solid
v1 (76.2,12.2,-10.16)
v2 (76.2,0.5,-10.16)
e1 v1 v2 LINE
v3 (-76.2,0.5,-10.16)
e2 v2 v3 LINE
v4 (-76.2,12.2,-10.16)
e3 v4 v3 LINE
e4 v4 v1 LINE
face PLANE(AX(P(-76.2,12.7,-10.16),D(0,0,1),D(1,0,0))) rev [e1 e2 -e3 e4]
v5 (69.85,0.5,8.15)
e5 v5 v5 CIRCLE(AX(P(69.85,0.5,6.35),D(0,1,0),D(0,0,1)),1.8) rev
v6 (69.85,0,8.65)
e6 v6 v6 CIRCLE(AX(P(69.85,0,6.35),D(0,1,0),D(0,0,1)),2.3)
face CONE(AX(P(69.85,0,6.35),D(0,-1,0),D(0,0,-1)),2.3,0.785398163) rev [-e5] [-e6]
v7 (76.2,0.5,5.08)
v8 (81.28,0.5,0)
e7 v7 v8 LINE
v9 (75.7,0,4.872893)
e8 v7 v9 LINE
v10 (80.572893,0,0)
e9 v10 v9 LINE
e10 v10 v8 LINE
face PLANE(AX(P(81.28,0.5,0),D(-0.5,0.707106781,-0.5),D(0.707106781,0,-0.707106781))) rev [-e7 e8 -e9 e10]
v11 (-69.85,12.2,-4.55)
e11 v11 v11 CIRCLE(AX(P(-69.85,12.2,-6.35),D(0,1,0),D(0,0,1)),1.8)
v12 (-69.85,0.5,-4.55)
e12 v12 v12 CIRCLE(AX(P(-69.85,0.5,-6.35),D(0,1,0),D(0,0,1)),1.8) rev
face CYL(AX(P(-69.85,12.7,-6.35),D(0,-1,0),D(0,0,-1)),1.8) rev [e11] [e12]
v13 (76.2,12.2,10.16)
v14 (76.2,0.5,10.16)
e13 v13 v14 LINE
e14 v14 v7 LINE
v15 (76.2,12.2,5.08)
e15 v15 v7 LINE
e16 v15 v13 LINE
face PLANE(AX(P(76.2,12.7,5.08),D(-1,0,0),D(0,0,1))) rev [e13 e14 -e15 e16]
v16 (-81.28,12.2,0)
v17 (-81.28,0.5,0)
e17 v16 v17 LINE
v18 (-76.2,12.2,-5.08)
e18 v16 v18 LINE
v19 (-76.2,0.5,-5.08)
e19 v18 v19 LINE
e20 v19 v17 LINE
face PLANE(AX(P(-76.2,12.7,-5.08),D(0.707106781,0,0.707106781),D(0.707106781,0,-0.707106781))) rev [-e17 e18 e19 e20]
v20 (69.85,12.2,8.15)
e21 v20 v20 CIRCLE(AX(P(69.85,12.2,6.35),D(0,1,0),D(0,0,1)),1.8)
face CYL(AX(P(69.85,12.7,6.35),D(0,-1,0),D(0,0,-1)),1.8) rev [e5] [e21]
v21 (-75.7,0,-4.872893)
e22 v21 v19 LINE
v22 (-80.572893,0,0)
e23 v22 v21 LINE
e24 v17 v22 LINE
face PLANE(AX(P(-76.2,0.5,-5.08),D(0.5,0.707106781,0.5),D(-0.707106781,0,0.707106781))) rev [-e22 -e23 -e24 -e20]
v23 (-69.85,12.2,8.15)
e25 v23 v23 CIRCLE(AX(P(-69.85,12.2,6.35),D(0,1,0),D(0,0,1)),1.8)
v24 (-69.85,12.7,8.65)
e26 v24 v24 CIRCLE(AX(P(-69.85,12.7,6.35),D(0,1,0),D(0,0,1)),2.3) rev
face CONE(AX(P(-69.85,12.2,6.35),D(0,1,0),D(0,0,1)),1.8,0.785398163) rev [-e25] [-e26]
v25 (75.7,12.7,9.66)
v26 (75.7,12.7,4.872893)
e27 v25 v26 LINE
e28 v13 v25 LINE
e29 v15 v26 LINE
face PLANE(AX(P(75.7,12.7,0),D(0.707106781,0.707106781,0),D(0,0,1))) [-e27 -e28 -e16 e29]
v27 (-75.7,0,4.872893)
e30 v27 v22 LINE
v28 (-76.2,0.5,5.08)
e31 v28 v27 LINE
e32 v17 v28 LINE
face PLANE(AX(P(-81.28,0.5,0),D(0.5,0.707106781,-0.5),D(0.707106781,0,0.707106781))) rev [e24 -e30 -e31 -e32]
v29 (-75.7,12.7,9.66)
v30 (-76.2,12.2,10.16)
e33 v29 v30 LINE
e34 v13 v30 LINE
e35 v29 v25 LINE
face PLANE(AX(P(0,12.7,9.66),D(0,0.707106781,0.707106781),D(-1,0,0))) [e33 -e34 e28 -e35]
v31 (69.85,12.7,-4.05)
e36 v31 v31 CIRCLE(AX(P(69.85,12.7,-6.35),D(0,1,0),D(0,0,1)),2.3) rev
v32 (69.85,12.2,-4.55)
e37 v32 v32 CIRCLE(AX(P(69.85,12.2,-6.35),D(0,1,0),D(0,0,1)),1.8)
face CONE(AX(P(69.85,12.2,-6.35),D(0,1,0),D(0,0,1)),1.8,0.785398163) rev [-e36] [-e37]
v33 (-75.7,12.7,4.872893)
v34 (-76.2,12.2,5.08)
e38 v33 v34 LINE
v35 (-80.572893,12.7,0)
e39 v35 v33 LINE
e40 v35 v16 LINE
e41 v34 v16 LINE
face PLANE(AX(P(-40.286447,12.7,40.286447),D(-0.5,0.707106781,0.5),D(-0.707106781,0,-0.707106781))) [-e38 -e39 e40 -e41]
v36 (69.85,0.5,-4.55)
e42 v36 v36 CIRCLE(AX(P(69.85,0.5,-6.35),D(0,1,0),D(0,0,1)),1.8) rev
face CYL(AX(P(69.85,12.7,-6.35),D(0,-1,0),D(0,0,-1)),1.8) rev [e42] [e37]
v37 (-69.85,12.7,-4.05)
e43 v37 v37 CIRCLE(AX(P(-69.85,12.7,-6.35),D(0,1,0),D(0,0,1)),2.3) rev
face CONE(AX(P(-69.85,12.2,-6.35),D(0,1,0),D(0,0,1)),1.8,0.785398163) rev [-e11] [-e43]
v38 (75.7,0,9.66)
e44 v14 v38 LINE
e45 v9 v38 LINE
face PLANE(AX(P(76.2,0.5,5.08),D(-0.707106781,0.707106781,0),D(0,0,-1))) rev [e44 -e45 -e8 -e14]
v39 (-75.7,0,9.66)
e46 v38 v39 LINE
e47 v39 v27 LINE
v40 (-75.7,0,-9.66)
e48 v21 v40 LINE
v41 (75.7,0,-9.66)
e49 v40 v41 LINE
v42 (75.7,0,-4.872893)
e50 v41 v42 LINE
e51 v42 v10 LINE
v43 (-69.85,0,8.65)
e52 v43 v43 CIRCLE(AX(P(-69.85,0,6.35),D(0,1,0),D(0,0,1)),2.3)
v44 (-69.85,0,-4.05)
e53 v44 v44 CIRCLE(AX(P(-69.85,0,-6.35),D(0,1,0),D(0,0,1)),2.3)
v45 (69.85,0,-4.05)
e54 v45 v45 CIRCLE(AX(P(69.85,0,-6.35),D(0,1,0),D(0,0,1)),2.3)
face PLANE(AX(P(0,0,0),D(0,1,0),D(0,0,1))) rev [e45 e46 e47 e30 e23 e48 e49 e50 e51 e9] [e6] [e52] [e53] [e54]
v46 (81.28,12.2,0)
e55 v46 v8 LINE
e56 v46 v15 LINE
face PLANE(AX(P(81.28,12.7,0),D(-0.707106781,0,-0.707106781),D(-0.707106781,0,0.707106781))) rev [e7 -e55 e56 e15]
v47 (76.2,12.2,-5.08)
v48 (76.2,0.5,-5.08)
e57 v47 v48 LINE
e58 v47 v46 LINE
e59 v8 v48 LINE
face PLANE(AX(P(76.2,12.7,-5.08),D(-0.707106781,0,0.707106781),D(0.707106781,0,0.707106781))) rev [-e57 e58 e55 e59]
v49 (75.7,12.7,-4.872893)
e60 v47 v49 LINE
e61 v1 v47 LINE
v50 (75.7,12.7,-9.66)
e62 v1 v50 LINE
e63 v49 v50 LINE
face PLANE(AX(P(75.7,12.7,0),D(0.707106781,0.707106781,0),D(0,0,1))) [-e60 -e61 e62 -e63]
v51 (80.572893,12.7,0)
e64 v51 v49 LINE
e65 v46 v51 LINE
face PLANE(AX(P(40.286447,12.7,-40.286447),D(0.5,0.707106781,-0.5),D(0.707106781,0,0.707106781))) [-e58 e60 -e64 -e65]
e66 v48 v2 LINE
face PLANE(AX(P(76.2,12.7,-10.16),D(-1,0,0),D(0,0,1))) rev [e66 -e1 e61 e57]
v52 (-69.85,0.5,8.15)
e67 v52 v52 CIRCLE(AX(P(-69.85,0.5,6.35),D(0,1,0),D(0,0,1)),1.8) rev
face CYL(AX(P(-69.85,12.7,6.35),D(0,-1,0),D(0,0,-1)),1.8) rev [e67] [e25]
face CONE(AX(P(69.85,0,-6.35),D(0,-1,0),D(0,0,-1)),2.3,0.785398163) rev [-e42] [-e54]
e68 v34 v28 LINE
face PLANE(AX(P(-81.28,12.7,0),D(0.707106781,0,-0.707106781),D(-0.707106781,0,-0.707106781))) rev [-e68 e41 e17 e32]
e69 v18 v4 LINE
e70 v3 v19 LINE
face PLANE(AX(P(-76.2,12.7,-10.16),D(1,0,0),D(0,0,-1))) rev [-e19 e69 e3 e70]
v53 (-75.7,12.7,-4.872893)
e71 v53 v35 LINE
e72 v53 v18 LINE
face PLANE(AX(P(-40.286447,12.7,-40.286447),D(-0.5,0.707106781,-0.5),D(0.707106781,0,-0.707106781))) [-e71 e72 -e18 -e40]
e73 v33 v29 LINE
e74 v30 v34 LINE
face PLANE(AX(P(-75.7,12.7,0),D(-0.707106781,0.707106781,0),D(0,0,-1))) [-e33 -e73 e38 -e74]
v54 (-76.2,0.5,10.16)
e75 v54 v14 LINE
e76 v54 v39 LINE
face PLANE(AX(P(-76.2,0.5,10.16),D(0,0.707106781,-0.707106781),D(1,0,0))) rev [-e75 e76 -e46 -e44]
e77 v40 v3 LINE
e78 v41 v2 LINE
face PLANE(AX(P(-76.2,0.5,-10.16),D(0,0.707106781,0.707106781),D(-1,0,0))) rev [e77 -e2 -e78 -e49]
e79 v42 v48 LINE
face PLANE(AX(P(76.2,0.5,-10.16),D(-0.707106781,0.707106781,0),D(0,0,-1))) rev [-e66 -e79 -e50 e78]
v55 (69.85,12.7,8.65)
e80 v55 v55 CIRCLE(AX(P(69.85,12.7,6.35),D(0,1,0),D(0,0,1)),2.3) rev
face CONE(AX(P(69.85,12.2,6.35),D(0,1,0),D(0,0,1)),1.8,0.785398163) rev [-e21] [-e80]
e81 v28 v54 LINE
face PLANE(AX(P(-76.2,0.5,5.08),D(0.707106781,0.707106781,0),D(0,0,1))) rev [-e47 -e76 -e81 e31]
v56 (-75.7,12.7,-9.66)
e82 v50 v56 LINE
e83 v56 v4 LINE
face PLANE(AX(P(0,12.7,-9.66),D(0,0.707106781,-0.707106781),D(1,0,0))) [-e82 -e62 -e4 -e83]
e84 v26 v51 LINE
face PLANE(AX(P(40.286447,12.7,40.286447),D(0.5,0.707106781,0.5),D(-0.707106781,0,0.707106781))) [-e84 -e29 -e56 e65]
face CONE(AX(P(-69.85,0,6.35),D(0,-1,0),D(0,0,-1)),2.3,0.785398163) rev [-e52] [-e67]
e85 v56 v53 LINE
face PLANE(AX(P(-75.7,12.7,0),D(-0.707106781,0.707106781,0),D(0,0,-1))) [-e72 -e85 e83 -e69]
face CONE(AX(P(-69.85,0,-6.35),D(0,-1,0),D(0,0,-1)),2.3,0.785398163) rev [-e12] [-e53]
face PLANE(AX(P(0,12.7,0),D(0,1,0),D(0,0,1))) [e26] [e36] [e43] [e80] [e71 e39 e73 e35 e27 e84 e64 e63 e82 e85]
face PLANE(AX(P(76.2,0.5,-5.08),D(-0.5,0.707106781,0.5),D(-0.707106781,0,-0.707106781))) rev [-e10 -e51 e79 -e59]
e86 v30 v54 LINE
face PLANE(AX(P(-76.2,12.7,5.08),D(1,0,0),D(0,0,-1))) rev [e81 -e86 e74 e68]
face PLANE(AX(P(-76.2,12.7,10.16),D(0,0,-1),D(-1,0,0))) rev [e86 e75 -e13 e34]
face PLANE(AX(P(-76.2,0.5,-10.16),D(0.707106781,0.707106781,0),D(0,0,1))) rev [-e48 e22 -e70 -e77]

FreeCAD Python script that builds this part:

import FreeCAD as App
import Part
import Sketcher
Q = App.Units.Quantity


def edges_at(feature, points):
    """Names of the edges that pass closest to the given points."""
    edges = feature.Shape.Edges
    near = lambda p: min(range(len(edges)), key=lambda i: edges[i].distToShape(Part.Vertex(*p))[0])
    return sorted({f"Edge{near(p) + 1}" for p in points})

doc = App.newDocument("Part")
body = doc.addObject("PartDesign::Body", "Body")

# Sketch on XZ plane
sketch1 = body.newObject("Sketcher::SketchObject", "Sketch")
sketch1.AttachmentSupport = (doc.getObject("XZ_Plane"), [""])
sketch1.MapMode = "FlatFace"
sketch1.addGeometry([
    Part.LineSegment(App.Vector(-76.2, -5.08, 0), App.Vector(-81.28, 0, 0)),  # 0
    Part.LineSegment(App.Vector(-81.28, 0, 0), App.Vector(-76.2, 5.08, 0)),  # 1
    Part.LineSegment(App.Vector(-76.2, 5.08, 0), App.Vector(-76.2, 10.16, 0)),  # 2
    Part.LineSegment(App.Vector(-76.2, 10.16, 0), App.Vector(76.2, 10.16, 0)),  # 3
    Part.LineSegment(App.Vector(76.2, 10.16, 0), App.Vector(76.2, 5.08, 0)),  # 4
    Part.LineSegment(App.Vector(76.2, 5.08, 0), App.Vector(81.28, 0, 0)),  # 5
    Part.LineSegment(App.Vector(81.28, 0, 0), App.Vector(76.2, -5.08, 0)),  # 6
    Part.LineSegment(App.Vector(76.2, -5.08, 0), App.Vector(76.2, -10.16, 0)),  # 7
    Part.LineSegment(App.Vector(76.2, -10.16, 0), App.Vector(-76.2, -10.16, 0)),  # 8
    Part.LineSegment(App.Vector(-76.2, -10.16, 0), App.Vector(-76.2, -5.08, 0)),  # 9
    Part.Circle(App.Vector(-69.85, 6.35, 0), App.Vector(0, 0, 1), 1.8),  # 10
    Part.Circle(App.Vector(69.85, 6.35, 0), App.Vector(0, 0, 1), 1.8),  # 11
    Part.Circle(App.Vector(-69.85, -6.35, 0), App.Vector(0, 0, 1), 1.8),  # 12
    Part.Circle(App.Vector(69.85, -6.35, 0), App.Vector(0, 0, 1), 1.8),  # 13
], False)
sketch1.addConstraint([
    Sketcher.Constraint("Coincident", 0, 2, 1, 1),
    Sketcher.Constraint("Coincident", 1, 2, 2, 1),
    Sketcher.Constraint("Coincident", 2, 2, 3, 1),
    Sketcher.Constraint("Coincident", 3, 2, 4, 1),
    Sketcher.Constraint("Coincident", 4, 2, 5, 1),
    Sketcher.Constraint("Coincident", 5, 2, 6, 1),
    Sketcher.Constraint("Coincident", 6, 2, 7, 1),
    Sketcher.Constraint("Coincident", 7, 2, 8, 1),
    Sketcher.Constraint("Coincident", 8, 2, 9, 1),
    Sketcher.Constraint("Coincident", 9, 2, 0, 1),
    Sketcher.Constraint("Vertical", 2),
    Sketcher.Constraint("Horizontal", 3),
    Sketcher.Constraint("Vertical", 4),
    Sketcher.Constraint("Vertical", 7),
    Sketcher.Constraint("Horizontal", 8),
    Sketcher.Constraint("Vertical", 9),
    Sketcher.Constraint("Equal", 10, 11),
    Sketcher.Constraint("Equal", 11, 12),
    Sketcher.Constraint("Equal", 12, 13),
    Sketcher.Constraint("Symmetric", 11, 3, 12, 3, -1, 1),
    Sketcher.Constraint("Symmetric", 10, 3, 13, 3, -1, 1),
    Sketcher.Constraint("Symmetric", 0, 2, 5, 2, -1, 1),
    Sketcher.Constraint("Symmetric", 1, 2, 6, 2, -1, 1),
    Sketcher.Constraint("Symmetric", 3, 2, 8, 2, -1, 1),
    Sketcher.Constraint("Symmetric", 10, 3, 11, 3, -2),
    Sketcher.Constraint("Symmetric", 1, 2, 4, 2, -2),
    Sketcher.Constraint("PointOnObject", 0, 2, -1),
    Sketcher.Constraint("Perpendicular", 0, 1),
    Sketcher.Constraint("Perpendicular", 1, 5),
    Sketcher.Constraint("DistanceX", 3, 1, 3, 2, Q("6 in")),
    Sketcher.Constraint("DistanceY", 2, 1, 2, 2, Q("0.2 in")),
    Sketcher.Constraint("DistanceX", 0, 2, -1, 1, Q("3.2 in")),
    Sketcher.Constraint("DistanceX", 10, 3, 11, 3, Q("5.5 in")),
    Sketcher.Constraint("DistanceY", 12, 3, 10, 3, Q("0.5 in")),
    Sketcher.Constraint("Diameter", 10, Q("3.6 mm")),
])
pad1 = body.newObject("PartDesign::Pad", "Pad")
pad1.Profile = sketch1
pad1.Length = Q("0.5 in")
pad1.Reversed = True
doc.recompute()

chamfer = body.newObject("PartDesign::Chamfer", "Chamfer")
chamfer.Base = (pad1, edges_at(pad1, [
    (0, 0, 10.16),
    (-76.2, 0, 7.62),
    (-78.74, 0, 2.54),
    (-78.74, 0, -2.54),
    (-76.2, 0, -7.62),
    (0, 0, -10.16),
    (76.2, 0, -7.62),
    (78.74, 12.7, -2.54),
    (78.74, 0, -2.54),
    (78.74, 0, 2.54),
    (76.2, 0, 7.62),
    (76.2, 12.7, -7.62),
    (0, 12.7, -10.16),
    (-76.2, 12.7, -7.62),
    (-69.85, 0, -8.15),
    (-69.85, 12.7, -8.15),
    (-78.74, 12.7, -2.54),
    (-69.85, 0, 8.15),
    (-69.85, 12.7, 8.15),
    (-78.74, 12.7, 2.54),
    (69.85, 0, 4.55),
    (69.85, 12.7, 4.55),
    (-76.2, 12.7, 7.62),
    (69.85, 0, -4.55),
    (69.85, 12.7, -4.55),
    (0, 12.7, 10.16),
    (76.2, 12.7, 7.62),
    (78.74, 12.7, 2.54),
]))
chamfer.Size = 0.5

doc.recompute()
